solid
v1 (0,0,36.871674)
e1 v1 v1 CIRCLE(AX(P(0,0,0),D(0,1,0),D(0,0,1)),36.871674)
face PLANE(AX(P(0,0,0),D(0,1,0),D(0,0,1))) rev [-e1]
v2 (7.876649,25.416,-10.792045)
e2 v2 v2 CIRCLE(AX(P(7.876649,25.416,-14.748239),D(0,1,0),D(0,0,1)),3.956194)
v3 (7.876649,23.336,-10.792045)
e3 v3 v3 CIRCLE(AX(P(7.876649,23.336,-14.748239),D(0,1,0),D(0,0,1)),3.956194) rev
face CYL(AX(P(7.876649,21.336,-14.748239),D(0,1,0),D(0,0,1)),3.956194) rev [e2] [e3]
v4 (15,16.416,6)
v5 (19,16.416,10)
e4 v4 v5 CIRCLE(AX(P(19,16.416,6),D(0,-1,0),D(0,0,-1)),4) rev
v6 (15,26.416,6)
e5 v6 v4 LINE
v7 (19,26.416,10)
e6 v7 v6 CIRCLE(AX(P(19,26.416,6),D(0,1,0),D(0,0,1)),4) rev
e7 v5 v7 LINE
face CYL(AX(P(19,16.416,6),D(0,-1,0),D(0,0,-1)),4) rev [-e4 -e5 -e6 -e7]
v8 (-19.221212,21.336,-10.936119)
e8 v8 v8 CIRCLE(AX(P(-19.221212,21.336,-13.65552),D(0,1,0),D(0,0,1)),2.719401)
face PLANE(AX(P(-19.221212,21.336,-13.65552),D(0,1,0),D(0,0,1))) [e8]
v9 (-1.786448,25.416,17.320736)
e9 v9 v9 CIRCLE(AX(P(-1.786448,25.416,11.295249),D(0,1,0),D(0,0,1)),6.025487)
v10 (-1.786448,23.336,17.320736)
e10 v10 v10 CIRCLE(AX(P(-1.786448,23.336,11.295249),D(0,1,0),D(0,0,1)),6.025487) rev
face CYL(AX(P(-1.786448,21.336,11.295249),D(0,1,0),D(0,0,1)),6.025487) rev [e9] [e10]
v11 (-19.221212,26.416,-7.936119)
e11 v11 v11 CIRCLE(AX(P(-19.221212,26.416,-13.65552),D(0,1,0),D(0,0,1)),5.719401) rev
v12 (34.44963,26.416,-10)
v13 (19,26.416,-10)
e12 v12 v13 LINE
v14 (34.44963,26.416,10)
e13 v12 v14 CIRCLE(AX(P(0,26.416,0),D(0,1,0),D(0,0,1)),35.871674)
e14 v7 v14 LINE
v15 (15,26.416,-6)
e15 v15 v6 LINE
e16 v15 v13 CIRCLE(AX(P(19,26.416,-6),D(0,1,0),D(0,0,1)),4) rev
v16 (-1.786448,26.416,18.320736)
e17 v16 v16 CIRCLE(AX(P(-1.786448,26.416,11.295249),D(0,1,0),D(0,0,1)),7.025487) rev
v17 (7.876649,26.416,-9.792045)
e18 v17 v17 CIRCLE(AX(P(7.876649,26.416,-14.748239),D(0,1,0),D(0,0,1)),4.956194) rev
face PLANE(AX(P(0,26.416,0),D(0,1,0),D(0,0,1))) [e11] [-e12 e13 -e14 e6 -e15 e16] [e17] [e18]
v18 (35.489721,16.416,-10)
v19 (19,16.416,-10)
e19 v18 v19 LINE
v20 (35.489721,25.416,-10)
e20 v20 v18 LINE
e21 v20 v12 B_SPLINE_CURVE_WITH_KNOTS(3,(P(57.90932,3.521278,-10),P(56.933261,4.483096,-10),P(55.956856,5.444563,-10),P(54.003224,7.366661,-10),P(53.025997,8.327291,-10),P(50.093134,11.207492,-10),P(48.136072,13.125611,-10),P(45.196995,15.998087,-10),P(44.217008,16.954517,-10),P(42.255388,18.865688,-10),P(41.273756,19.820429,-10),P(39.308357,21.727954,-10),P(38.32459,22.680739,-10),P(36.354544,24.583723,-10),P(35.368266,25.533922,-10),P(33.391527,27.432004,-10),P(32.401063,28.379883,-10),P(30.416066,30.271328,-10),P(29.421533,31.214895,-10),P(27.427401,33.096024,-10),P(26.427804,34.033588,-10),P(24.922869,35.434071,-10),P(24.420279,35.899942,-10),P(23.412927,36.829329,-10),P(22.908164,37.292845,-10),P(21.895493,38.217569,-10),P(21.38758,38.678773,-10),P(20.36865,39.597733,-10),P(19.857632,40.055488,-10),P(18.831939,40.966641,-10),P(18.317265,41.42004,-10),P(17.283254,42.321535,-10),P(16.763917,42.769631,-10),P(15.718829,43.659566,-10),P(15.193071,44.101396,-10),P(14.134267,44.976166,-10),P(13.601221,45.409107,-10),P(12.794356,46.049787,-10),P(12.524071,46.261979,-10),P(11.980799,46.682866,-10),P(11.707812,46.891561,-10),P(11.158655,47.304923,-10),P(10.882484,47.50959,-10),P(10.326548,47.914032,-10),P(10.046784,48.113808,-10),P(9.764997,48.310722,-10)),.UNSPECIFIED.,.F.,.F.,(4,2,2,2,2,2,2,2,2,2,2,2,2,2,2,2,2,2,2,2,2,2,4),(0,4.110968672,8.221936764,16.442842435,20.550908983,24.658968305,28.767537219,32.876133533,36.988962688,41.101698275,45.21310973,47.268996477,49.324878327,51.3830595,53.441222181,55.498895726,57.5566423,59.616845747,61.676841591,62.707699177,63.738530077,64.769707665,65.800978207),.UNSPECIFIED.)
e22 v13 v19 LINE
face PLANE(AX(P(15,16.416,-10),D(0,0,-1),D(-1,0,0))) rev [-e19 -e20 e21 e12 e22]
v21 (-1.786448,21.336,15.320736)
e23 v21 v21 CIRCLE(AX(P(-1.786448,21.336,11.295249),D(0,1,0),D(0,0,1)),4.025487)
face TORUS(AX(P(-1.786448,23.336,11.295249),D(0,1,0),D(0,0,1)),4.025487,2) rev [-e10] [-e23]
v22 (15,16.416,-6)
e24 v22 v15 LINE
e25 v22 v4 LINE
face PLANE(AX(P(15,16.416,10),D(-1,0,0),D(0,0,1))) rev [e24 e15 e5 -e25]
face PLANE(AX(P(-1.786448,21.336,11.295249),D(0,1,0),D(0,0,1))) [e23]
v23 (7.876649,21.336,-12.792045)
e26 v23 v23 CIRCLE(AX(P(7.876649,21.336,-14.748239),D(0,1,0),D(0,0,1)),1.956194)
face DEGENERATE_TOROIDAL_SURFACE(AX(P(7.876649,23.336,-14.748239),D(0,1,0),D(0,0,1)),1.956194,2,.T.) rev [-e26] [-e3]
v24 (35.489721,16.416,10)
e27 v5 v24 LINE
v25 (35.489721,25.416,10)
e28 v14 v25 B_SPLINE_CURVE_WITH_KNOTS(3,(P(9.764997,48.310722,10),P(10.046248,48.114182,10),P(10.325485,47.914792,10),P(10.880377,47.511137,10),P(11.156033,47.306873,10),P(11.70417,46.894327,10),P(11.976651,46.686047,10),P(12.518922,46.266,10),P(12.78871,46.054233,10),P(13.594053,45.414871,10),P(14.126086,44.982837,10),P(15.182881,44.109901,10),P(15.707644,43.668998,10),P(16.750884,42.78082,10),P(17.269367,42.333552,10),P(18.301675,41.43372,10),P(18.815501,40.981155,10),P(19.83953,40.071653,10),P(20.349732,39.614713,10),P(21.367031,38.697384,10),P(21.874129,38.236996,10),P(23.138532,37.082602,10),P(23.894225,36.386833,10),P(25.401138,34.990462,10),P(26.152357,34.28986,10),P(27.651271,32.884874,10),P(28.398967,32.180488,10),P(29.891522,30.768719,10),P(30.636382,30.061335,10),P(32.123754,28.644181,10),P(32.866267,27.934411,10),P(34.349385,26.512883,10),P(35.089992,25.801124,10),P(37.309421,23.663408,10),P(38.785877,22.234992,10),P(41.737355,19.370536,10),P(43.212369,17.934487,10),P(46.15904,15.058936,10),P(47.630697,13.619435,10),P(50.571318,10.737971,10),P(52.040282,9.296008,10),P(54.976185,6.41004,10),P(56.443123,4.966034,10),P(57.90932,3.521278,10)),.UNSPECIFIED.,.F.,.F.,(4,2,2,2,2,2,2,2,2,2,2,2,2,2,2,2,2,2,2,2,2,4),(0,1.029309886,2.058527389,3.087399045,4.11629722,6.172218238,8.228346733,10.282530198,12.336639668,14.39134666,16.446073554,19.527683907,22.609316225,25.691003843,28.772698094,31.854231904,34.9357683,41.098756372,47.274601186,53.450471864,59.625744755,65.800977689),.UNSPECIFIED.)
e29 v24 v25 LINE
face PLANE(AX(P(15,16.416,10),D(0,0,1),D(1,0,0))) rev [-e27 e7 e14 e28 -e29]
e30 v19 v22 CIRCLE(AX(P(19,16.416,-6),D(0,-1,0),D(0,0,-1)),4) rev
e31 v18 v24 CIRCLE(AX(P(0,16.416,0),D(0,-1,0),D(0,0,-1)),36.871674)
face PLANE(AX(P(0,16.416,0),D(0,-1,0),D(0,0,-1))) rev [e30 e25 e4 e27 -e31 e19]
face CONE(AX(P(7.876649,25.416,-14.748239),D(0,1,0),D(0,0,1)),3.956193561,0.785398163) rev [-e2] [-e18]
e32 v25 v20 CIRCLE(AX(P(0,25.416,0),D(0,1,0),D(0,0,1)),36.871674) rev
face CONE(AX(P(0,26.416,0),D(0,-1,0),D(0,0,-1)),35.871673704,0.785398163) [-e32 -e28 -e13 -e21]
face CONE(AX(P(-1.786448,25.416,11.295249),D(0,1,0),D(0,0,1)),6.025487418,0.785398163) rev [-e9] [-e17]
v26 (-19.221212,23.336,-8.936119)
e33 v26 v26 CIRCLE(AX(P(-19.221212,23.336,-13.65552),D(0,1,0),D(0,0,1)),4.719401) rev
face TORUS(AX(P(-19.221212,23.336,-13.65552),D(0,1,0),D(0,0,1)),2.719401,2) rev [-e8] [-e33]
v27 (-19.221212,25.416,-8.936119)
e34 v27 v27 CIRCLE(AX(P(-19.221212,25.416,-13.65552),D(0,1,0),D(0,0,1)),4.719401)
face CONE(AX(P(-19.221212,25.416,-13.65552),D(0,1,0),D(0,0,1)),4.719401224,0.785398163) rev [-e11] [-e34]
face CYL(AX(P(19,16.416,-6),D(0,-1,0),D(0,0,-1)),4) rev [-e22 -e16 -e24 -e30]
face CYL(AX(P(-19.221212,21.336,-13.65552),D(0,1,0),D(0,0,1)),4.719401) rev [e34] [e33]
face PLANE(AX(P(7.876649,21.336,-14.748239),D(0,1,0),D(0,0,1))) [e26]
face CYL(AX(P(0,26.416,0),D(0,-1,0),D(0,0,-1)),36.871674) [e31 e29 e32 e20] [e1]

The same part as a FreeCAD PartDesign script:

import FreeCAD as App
import Part
import Sketcher
Q = App.Units.Quantity


def edges_at(feature, points):
    """Names of the edges that pass closest to the given points."""
    edges = feature.Shape.Edges
    near = lambda p: min(range(len(edges)), key=lambda i: edges[i].distToShape(Part.Vertex(*p))[0])
    return sorted({f"Edge{near(p) + 1}" for p in points})


def add_polygon(sketch, points):
    """Adds a closed chain of lines whose ends are joined by coincident constraints."""
    first, n = sketch.GeometryCount, len(points)
    for a, b in zip(points, points[1:] + points[:1]):
        sketch.addGeometry(Part.LineSegment(App.Vector(*a, 0), App.Vector(*b, 0)), False)
    for i in range(n):
        sketch.addConstraint(Sketcher.Constraint("Coincident", first + i, 2, first + (i + 1) % n, 1))

doc = App.newDocument("Part")
body = doc.addObject("PartDesign::Body", "Body")

# Sketch on XZ plane
sketch1 = body.newObject("Sketcher::SketchObject", "Sketch")
sketch1.AttachmentSupport = (doc.getObject("XZ_Plane"), [""])
sketch1.MapMode = "FlatFace"
sketch1.addGeometry(Part.Circle(App.Vector(0, 0, 0), App.Vector(0, 0, 1), 36.871674), False)
sketch1.addConstraint([
    Sketcher.Constraint("Coincident", 0, 3, -1, 1),
    Sketcher.Constraint("Diameter", 0, Q("73.743347 mm")),
])
pad1 = body.newObject("PartDesign::Pad", "Pad")
pad1.Profile = sketch1
pad1.Length = 26.416
pad1.Reversed = True

# Sketch on XZ plane
sketch2 = body.newObject("Sketcher::SketchObject", "Sketch001")
sketch2.AttachmentSupport = (doc.getObject("XZ_Plane"), [""])
sketch2.MapMode = "FlatFace"
sketch2.AttachmentOffset = App.Placement(App.Vector(0, 0, -26.416), App.Rotation())
sketch2.addGeometry([
    Part.Circle(App.Vector(-19.221212, -13.65552, 0), App.Vector(0, 0, 1), 4.719401),
    Part.Circle(App.Vector(7.876649, -14.748239, 0), App.Vector(0, 0, 1), 3.956194),
    Part.Circle(App.Vector(-1.786448, 11.295249, 0), App.Vector(0, 0, 1), 6.025487),
], False)
sketch2.addConstraint([
    Sketcher.Constraint("Diameter", 0, Q("9.438802 mm")),
    Sketcher.Constraint("Diameter", 1, Q("7.912387 mm")),
    Sketcher.Constraint("Diameter", 2, Q("12.050975 mm")),
    Sketcher.Constraint("DistanceX", 0, 3, -1, 1, Q("19.221212 mm")),
    Sketcher.Constraint("DistanceY", 0, 3, -1, 1, Q("13.65552 mm")),
    Sketcher.Constraint("DistanceX", -1, 1, 1, 3, Q("7.876649 mm")),
    Sketcher.Constraint("DistanceY", 1, 3, -1, 1, Q("14.748239 mm")),
    Sketcher.Constraint("DistanceX", 2, 3, -1, 1, Q("1.786448 mm")),
    Sketcher.Constraint("DistanceY", -1, 1, 2, 3, Q("11.295249 mm")),
])
pocket1 = body.newObject("PartDesign::Pocket", "Pocket")
pocket1.Profile = sketch2
pocket1.Length = 5.08
pocket1.Reversed = True
doc.recompute()

chamfer = body.newObject("PartDesign::Chamfer", "Chamfer")
chamfer.Base = (pocket1, edges_at(pocket1, [(0, 26.416, -36.872)]))
chamfer.Size = 1

# Sketch on XZ plane
sketch3 = body.newObject("Sketcher::SketchObject", "Sketch002")
sketch3.AttachmentSupport = (doc.getObject("XZ_Plane"), [""])
sketch3.MapMode = "FlatFace"
sketch3.AttachmentOffset = App.Placement(App.Vector(0, 0, -26.416), App.Rotation())
add_polygon(sketch3, [(15, -10), (15, 10), (45, 10), (45, -10)])  # lines 0-3
sketch3.addConstraint([
    Sketcher.Constraint("Vertical", 0),
    Sketcher.Constraint("Horizontal", 1),
    Sketcher.Constraint("Vertical", 2),
    Sketcher.Constraint("Horizontal", 3),
    Sketcher.Constraint("DistanceX", 1, 1, 1, 2, Q("30 mm")),
    Sketcher.Constraint("DistanceY", 0, 1, 0, 2, Q("20 mm")),
    Sketcher.Constraint("DistanceX", -1, 1, 0, 2, Q("15 mm")),
    Sketcher.Constraint("DistanceY", -1, 1, 0, 2, Q("10 mm")),
])
pocket2 = body.newObject("PartDesign::Pocket", "Pocket001")
pocket2.Profile = sketch3
pocket2.Length = 10
pocket2.Reversed = True
doc.recompute()

fillet = body.newObject("PartDesign::Fillet", "Fillet")
fillet.Base = (pocket2, edges_at(pocket2, [(15, 21.416, -10), (15, 21.416, 10)]))
fillet.Radius = 4
doc.recompute()

fillet2 = body.newObject("PartDesign::Fillet", "Fillet001")
fillet2.Base = (fillet, edges_at(fillet, [(-1.786, 21.336, 5.27), (-19.221, 21.336, -18.375), (7.877, 21.336, -18.704)]))
fillet2.Radius = 2
doc.recompute()

chamfer2 = body.newObject("PartDesign::Chamfer", "Chamfer001")
chamfer2.Base = (fillet2, edges_at(fillet2, [(-1.786, 26.416, 5.27), (-19.221, 26.416, -18.375), (7.877, 26.416, -18.704)]))
chamfer2.Size = 1

doc.recompute()
